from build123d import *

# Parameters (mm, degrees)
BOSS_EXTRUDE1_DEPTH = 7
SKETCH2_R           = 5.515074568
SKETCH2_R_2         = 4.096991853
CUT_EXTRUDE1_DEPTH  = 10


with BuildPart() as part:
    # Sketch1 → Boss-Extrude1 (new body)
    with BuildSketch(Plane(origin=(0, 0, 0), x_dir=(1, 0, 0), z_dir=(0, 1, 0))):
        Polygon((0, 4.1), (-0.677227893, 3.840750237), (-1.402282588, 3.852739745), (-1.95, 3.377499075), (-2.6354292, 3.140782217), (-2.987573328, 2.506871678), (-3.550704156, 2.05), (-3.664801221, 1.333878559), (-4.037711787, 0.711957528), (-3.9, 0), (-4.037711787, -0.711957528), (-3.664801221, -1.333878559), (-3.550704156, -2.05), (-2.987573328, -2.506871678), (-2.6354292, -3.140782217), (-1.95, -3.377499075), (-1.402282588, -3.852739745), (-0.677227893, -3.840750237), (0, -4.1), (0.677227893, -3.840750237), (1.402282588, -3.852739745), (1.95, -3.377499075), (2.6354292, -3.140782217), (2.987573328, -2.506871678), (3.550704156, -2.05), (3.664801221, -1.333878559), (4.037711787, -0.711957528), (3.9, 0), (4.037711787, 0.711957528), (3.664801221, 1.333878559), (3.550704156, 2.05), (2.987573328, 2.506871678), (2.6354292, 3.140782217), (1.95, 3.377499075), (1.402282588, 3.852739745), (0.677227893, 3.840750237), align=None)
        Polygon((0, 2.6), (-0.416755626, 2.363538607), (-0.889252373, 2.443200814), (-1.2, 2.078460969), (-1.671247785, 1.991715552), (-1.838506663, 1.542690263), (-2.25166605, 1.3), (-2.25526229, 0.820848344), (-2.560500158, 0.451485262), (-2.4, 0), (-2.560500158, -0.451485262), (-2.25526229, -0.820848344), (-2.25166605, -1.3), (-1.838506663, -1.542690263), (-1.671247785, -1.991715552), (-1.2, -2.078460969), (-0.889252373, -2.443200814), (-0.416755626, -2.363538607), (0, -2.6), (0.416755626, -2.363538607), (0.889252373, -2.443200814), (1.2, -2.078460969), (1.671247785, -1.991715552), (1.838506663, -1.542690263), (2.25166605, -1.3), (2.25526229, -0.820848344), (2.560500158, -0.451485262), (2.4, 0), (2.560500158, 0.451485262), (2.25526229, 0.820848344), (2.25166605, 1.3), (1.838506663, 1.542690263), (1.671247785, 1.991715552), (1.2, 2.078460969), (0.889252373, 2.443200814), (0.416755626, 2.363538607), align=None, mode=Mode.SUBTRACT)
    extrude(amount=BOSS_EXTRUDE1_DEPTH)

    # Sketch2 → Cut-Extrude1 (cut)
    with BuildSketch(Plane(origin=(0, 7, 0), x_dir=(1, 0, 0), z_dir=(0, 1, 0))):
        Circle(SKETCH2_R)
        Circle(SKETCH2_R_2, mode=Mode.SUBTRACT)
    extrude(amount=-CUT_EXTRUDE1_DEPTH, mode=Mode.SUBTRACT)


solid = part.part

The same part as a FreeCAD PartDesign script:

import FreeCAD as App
import Part
import Sketcher
from FreeCAD import Vector
Q = App.Units.Quantity


def add_polygon(sketch, points):
    """Adds a closed chain of lines whose ends are joined by coincident constraints."""
    first, n = sketch.GeometryCount, len(points)
    for a, b in zip(points, points[1:] + points[:1]):
        sketch.addGeometry(Part.LineSegment(App.Vector(*a, 0), App.Vector(*b, 0)), False)
    for i in range(n):
        sketch.addConstraint(Sketcher.Constraint("Coincident", first + i, 2, first + (i + 1) % n, 1))

doc = App.newDocument("Part")
body = doc.addObject("PartDesign::Body", "Body")

# Sketch on XZ plane
sketch1 = body.newObject("Sketcher::SketchObject", "Sketch")
sketch1.AttachmentSupport = (doc.getObject("XZ_Plane"), [""])
sketch1.MapMode = "FlatFace"
add_polygon(sketch1, [(0, -4.1), (-0.68, -3.84), (-1.4, -3.85), (-1.95, -3.38), (-2.64, -3.14), (-2.99, -2.51), (-3.55, -2.05), (-3.66, -1.33), (-4.04, -0.71), (-3.9, 0), (-4.04, 0.71), (-3.66, 1.33), (-3.55, 2.05), (-2.99, 2.51), (-2.64, 3.14), (-1.95, 3.38), (-1.4, 3.85), (-0.68, 3.84), (0, 4.1), (0.68, 3.84), (1.4, 3.85), (1.95, 3.38), (2.64, 3.14), (2.99, 2.51), (3.55, 2.05), (3.66, 1.33), (4.04, 0.71), (3.9, 0), (4.04, -0.71), (3.66, -1.33), (3.55, -2.05), (2.99, -2.51), (2.64, -3.14), (1.95, -3.38), (1.4, -3.85), (0.68, -3.84)])  # lines 0-35
add_polygon(sketch1, [(-0.42, -2.36), (0, -2.6), (0.42, -2.36), (0.89, -2.44), (1.2, -2.08), (1.67, -1.99), (1.84, -1.54), (2.25, -1.3), (2.26, -0.82), (2.56, -0.45), (2.4, 0), (2.56, 0.45), (2.26, 0.82), (2.25, 1.3), (1.84, 1.54), (1.67, 1.99), (1.2, 2.08), (0.89, 2.44), (0.42, 2.36), (0, 2.6), (-0.42, 2.36), (-0.89, 2.44), (-1.2, 2.08), (-1.67, 1.99), (-1.84, 1.54), (-2.25, 1.3), (-2.26, 0.82), (-2.56, 0.45), (-2.4, 0), (-2.56, -0.45), (-2.26, -0.82), (-2.25, -1.3), (-1.84, -1.54), (-1.67, -1.99), (-1.2, -2.08), (-0.89, -2.44)])  # lines 36-71
sketch1.addConstraint(Sketcher.Constraint("Symmetric", 0, 2, 18, 2, -1, 1))
sketch1.addConstraint(Sketcher.Constraint("Symmetric", 1, 2, 19, 2, -1, 1))
sketch1.addConstraint(Sketcher.Constraint("Symmetric", 2, 2, 20, 2, -1, 1))
sketch1.addConstraint(Sketcher.Constraint("Symmetric", 3, 2, 21, 2, -1, 1))
sketch1.addConstraint(Sketcher.Constraint("Symmetric", 4, 2, 22, 2, -1, 1))
sketch1.addConstraint(Sketcher.Constraint("Symmetric", 5, 2, 23, 2, -1, 1))
sketch1.addConstraint(Sketcher.Constraint("Symmetric", 6, 2, 24, 2, -1, 1))
sketch1.addConstraint(Sketcher.Constraint("Symmetric", 7, 2, 25, 2, -1, 1))
sketch1.addConstraint(Sketcher.Constraint("Symmetric", 8, 2, 26, 2, -1, 1))
sketch1.addConstraint(Sketcher.Constraint("Symmetric", 9, 2, 27, 2, -1, 1))
sketch1.addConstraint(Sketcher.Constraint("Symmetric", 10, 2, 28, 2, -1, 1))
sketch1.addConstraint(Sketcher.Constraint("Symmetric", 11, 2, 29, 2, -1, 1))
sketch1.addConstraint(Sketcher.Constraint("Symmetric", 12, 2, 30, 2, -1, 1))
sketch1.addConstraint(Sketcher.Constraint("Symmetric", 13, 2, 31, 2, -1, 1))
sketch1.addConstraint(Sketcher.Constraint("Symmetric", 14, 2, 32, 2, -1, 1))
sketch1.addConstraint(Sketcher.Constraint("Symmetric", 15, 2, 33, 2, -1, 1))
sketch1.addConstraint(Sketcher.Constraint("Symmetric", 16, 2, 34, 2, -1, 1))
sketch1.addConstraint(Sketcher.Constraint("Symmetric", 17, 2, 35, 2, -1, 1))
sketch1.addConstraint(Sketcher.Constraint("Symmetric", 36, 2, 54, 2, -1, 1))
sketch1.addConstraint(Sketcher.Constraint("Symmetric", 37, 2, 55, 2, -1, 1))
sketch1.addConstraint(Sketcher.Constraint("Symmetric", 38, 2, 56, 2, -1, 1))
sketch1.addConstraint(Sketcher.Constraint("Symmetric", 39, 2, 57, 2, -1, 1))
sketch1.addConstraint(Sketcher.Constraint("Symmetric", 40, 2, 58, 2, -1, 1))
sketch1.addConstraint(Sketcher.Constraint("Symmetric", 41, 2, 59, 2, -1, 1))
sketch1.addConstraint(Sketcher.Constraint("Symmetric", 42, 2, 60, 2, -1, 1))
sketch1.addConstraint(Sketcher.Constraint("Symmetric", 43, 2, 61, 2, -1, 1))
sketch1.addConstraint(Sketcher.Constraint("Symmetric", 44, 2, 62, 2, -1, 1))
sketch1.addConstraint(Sketcher.Constraint("Symmetric", 45, 2, 63, 2, -1, 1))
sketch1.addConstraint(Sketcher.Constraint("Symmetric", 46, 2, 64, 2, -1, 1))
sketch1.addConstraint(Sketcher.Constraint("Symmetric", 47, 2, 65, 2, -1, 1))
sketch1.addConstraint(Sketcher.Constraint("Symmetric", 48, 2, 66, 2, -1, 1))
sketch1.addConstraint(Sketcher.Constraint("Symmetric", 49, 2, 67, 2, -1, 1))
sketch1.addConstraint(Sketcher.Constraint("Symmetric", 50, 2, 68, 2, -1, 1))
sketch1.addConstraint(Sketcher.Constraint("Symmetric", 51, 2, 69, 2, -1, 1))
sketch1.addConstraint(Sketcher.Constraint("Symmetric", 52, 2, 70, 2, -1, 1))
sketch1.addConstraint(Sketcher.Constraint("Symmetric", 53, 2, 71, 2, -1, 1))
sketch1.addConstraint(Sketcher.Constraint("Symmetric", 16, 2, 18, 2, -2))
sketch1.addConstraint(Sketcher.Constraint("Symmetric", 15, 2, 19, 2, -2))
sketch1.addConstraint(Sketcher.Constraint("Symmetric", 14, 2, 20, 2, -2))
sketch1.addConstraint(Sketcher.Constraint("Symmetric", 13, 2, 21, 2, -2))
sketch1.addConstraint(Sketcher.Constraint("Symmetric", 12, 2, 22, 2, -2))
sketch1.addConstraint(Sketcher.Constraint("Symmetric", 11, 2, 23, 2, -2))
sketch1.addConstraint(Sketcher.Constraint("Symmetric", 10, 2, 24, 2, -2))
sketch1.addConstraint(Sketcher.Constraint("Symmetric", 9, 2, 25, 2, -2))
sketch1.addConstraint(Sketcher.Constraint("Symmetric", 53, 2, 55, 2, -2))
sketch1.addConstraint(Sketcher.Constraint("Symmetric", 52, 2, 56, 2, -2))
sketch1.addConstraint(Sketcher.Constraint("Symmetric", 51, 2, 57, 2, -2))
sketch1.addConstraint(Sketcher.Constraint("Symmetric", 50, 2, 58, 2, -2))
sketch1.addConstraint(Sketcher.Constraint("Symmetric", 49, 2, 59, 2, -2))
sketch1.addConstraint(Sketcher.Constraint("Symmetric", 48, 2, 60, 2, -2))
sketch1.addConstraint(Sketcher.Constraint("Symmetric", 47, 2, 61, 2, -2))
sketch1.addConstraint(Sketcher.Constraint("Symmetric", 46, 2, 62, 2, -2))
sketch1.addConstraint(Sketcher.Constraint("PointOnObject", 8, 2, -1))
sketch1.addConstraint(Sketcher.Constraint("PointOnObject", 17, 2, -2))
sketch1.addConstraint(Sketcher.Constraint("PointOnObject", 36, 2, -2))
sketch1.addConstraint(Sketcher.Constraint("PointOnObject", 45, 2, -1))
sketch1.addConstraint(Sketcher.Constraint("Equal", 0, 1))
sketch1.addConstraint(Sketcher.Constraint("Equal", 1, 2))
sketch1.addConstraint(Sketcher.Constraint("Equal", 2, 3))
sketch1.addConstraint(Sketcher.Constraint("Equal", 3, 4))
sketch1.addConstraint(Sketcher.Constraint("Equal", 4, 5))
sketch1.addConstraint(Sketcher.Constraint("Equal", 5, 6))
sketch1.addConstraint(Sketcher.Constraint("Equal", 6, 7))
sketch1.addConstraint(Sketcher.Constraint("Equal", 7, 8))
sketch1.addConstraint(Sketcher.Constraint("Equal", 37, 38))
sketch1.addConstraint(Sketcher.Constraint("Equal", 38, 39))
sketch1.addConstraint(Sketcher.Constraint("Equal", 39, 40))
sketch1.addConstraint(Sketcher.Constraint("Equal", 40, 41))
sketch1.addConstraint(Sketcher.Constraint("Equal", 41, 42))
sketch1.addConstraint(Sketcher.Constraint("Equal", 42, 43))
sketch1.addConstraint(Sketcher.Constraint("Equal", 43, 44))
sketch1.addConstraint(Sketcher.Constraint("Equal", 44, 45))
sketch1.addConstraint(Sketcher.Constraint("DistanceX", 8, 2, -1, 1, Q("3.9 mm")))
sketch1.addConstraint(Sketcher.Constraint("DistanceY", -1, 1, 17, 2, Q("4.1 mm")))
sketch1.addConstraint(Sketcher.Constraint("DistanceY", 36, 2, -1, 1, Q("2.6 mm")))
sketch1.addConstraint(Sketcher.Constraint("DistanceX", -1, 1, 39, 2, Q("1.2 mm")))
sketch1.addConstraint(Sketcher.Constraint("DistanceY", 42, 2, -1, 1, Q("1.3 mm")))
sketch1.addConstraint(Sketcher.Constraint("DistanceX", -1, 1, 45, 2, Q("2.4 mm")))
sketch1.addConstraint(Sketcher.Constraint("DistanceX", 2, 2, -1, 1, Q("1.95 mm")))
sketch1.addConstraint(Sketcher.Constraint("DistanceY", 5, 2, -1, 1, Q("2.05 mm")))
sketch1.addConstraint(Sketcher.Constraint("DistanceY", 2, 2, -1, 1, Q("3.377499 mm")))
sketch1.addConstraint(Sketcher.Constraint("DistanceX", 6, 2, -1, 1, Q("3.664801 mm")))
sketch1.addConstraint(Sketcher.Constraint("DistanceY", 38, 2, -1, 1, Q("2.443201 mm")))
sketch1.addConstraint(Sketcher.Constraint("DistanceX", -1, 1, 44, 2, Q("2.5605 mm")))
sketch1.addConstraint(Sketcher.Constraint("DistanceY", 0, 2, -1, 1, Q("3.84075 mm")))
sketch1.addConstraint(Sketcher.Constraint("DistanceY", 1, 2, -1, 1, Q("3.85274 mm")))
sketch1.addConstraint(Sketcher.Constraint("DistanceX", 3, 2, -1, 1, Q("2.635429 mm")))
sketch1.addConstraint(Sketcher.Constraint("DistanceY", 4, 2, -1, 1, Q("2.506872 mm")))
sketch1.addConstraint(Sketcher.Constraint("DistanceY", 37, 2, -1, 1, Q("2.363539 mm")))
sketch1.addConstraint(Sketcher.Constraint("DistanceY", 39, 2, -1, 1, Q("2.078461 mm")))
sketch1.addConstraint(Sketcher.Constraint("DistanceY", 41, 2, -1, 1, Q("1.54269 mm")))
sketch1.addConstraint(Sketcher.Constraint("DistanceX", -1, 1, 40, 2, Q("1.671248 mm")))
pad1 = body.newObject("PartDesign::Pad", "Pad")
pad1.Profile = sketch1
pad1.Length = 7
pad1.Reversed = True

# Sketch on XZ plane
sketch2 = body.newObject("Sketcher::SketchObject", "Sketch001")
sketch2.AttachmentSupport = (doc.getObject("XZ_Plane"), [""])
sketch2.MapMode = "FlatFace"
sketch2.AttachmentOffset = App.Placement(Vector(0, 0, -7), App.Rotation())
sketch2.addGeometry(Part.Circle(Vector(0, 0, 0), Vector(0, 0, 1), 5.5), False)
sketch2.addGeometry(Part.Circle(Vector(0, 0, 0), Vector(0, 0, 1), 4.1), False)
sketch2.addConstraint(Sketcher.Constraint("Coincident", 0, 3, -1, 1))
sketch2.addConstraint(Sketcher.Constraint("Coincident", 1, 3, -1, 1))
sketch2.addConstraint(Sketcher.Constraint("Diameter", 0, Q("11.030149 mm")))
sketch2.addConstraint(Sketcher.Constraint("Diameter", 1, Q("8.193984 mm")))
pocket1 = body.newObject("PartDesign::Pocket", "Pocket")
pocket1.Profile = sketch2
pocket1.Length = 10
pocket1.Reversed = True

doc.recompute()
